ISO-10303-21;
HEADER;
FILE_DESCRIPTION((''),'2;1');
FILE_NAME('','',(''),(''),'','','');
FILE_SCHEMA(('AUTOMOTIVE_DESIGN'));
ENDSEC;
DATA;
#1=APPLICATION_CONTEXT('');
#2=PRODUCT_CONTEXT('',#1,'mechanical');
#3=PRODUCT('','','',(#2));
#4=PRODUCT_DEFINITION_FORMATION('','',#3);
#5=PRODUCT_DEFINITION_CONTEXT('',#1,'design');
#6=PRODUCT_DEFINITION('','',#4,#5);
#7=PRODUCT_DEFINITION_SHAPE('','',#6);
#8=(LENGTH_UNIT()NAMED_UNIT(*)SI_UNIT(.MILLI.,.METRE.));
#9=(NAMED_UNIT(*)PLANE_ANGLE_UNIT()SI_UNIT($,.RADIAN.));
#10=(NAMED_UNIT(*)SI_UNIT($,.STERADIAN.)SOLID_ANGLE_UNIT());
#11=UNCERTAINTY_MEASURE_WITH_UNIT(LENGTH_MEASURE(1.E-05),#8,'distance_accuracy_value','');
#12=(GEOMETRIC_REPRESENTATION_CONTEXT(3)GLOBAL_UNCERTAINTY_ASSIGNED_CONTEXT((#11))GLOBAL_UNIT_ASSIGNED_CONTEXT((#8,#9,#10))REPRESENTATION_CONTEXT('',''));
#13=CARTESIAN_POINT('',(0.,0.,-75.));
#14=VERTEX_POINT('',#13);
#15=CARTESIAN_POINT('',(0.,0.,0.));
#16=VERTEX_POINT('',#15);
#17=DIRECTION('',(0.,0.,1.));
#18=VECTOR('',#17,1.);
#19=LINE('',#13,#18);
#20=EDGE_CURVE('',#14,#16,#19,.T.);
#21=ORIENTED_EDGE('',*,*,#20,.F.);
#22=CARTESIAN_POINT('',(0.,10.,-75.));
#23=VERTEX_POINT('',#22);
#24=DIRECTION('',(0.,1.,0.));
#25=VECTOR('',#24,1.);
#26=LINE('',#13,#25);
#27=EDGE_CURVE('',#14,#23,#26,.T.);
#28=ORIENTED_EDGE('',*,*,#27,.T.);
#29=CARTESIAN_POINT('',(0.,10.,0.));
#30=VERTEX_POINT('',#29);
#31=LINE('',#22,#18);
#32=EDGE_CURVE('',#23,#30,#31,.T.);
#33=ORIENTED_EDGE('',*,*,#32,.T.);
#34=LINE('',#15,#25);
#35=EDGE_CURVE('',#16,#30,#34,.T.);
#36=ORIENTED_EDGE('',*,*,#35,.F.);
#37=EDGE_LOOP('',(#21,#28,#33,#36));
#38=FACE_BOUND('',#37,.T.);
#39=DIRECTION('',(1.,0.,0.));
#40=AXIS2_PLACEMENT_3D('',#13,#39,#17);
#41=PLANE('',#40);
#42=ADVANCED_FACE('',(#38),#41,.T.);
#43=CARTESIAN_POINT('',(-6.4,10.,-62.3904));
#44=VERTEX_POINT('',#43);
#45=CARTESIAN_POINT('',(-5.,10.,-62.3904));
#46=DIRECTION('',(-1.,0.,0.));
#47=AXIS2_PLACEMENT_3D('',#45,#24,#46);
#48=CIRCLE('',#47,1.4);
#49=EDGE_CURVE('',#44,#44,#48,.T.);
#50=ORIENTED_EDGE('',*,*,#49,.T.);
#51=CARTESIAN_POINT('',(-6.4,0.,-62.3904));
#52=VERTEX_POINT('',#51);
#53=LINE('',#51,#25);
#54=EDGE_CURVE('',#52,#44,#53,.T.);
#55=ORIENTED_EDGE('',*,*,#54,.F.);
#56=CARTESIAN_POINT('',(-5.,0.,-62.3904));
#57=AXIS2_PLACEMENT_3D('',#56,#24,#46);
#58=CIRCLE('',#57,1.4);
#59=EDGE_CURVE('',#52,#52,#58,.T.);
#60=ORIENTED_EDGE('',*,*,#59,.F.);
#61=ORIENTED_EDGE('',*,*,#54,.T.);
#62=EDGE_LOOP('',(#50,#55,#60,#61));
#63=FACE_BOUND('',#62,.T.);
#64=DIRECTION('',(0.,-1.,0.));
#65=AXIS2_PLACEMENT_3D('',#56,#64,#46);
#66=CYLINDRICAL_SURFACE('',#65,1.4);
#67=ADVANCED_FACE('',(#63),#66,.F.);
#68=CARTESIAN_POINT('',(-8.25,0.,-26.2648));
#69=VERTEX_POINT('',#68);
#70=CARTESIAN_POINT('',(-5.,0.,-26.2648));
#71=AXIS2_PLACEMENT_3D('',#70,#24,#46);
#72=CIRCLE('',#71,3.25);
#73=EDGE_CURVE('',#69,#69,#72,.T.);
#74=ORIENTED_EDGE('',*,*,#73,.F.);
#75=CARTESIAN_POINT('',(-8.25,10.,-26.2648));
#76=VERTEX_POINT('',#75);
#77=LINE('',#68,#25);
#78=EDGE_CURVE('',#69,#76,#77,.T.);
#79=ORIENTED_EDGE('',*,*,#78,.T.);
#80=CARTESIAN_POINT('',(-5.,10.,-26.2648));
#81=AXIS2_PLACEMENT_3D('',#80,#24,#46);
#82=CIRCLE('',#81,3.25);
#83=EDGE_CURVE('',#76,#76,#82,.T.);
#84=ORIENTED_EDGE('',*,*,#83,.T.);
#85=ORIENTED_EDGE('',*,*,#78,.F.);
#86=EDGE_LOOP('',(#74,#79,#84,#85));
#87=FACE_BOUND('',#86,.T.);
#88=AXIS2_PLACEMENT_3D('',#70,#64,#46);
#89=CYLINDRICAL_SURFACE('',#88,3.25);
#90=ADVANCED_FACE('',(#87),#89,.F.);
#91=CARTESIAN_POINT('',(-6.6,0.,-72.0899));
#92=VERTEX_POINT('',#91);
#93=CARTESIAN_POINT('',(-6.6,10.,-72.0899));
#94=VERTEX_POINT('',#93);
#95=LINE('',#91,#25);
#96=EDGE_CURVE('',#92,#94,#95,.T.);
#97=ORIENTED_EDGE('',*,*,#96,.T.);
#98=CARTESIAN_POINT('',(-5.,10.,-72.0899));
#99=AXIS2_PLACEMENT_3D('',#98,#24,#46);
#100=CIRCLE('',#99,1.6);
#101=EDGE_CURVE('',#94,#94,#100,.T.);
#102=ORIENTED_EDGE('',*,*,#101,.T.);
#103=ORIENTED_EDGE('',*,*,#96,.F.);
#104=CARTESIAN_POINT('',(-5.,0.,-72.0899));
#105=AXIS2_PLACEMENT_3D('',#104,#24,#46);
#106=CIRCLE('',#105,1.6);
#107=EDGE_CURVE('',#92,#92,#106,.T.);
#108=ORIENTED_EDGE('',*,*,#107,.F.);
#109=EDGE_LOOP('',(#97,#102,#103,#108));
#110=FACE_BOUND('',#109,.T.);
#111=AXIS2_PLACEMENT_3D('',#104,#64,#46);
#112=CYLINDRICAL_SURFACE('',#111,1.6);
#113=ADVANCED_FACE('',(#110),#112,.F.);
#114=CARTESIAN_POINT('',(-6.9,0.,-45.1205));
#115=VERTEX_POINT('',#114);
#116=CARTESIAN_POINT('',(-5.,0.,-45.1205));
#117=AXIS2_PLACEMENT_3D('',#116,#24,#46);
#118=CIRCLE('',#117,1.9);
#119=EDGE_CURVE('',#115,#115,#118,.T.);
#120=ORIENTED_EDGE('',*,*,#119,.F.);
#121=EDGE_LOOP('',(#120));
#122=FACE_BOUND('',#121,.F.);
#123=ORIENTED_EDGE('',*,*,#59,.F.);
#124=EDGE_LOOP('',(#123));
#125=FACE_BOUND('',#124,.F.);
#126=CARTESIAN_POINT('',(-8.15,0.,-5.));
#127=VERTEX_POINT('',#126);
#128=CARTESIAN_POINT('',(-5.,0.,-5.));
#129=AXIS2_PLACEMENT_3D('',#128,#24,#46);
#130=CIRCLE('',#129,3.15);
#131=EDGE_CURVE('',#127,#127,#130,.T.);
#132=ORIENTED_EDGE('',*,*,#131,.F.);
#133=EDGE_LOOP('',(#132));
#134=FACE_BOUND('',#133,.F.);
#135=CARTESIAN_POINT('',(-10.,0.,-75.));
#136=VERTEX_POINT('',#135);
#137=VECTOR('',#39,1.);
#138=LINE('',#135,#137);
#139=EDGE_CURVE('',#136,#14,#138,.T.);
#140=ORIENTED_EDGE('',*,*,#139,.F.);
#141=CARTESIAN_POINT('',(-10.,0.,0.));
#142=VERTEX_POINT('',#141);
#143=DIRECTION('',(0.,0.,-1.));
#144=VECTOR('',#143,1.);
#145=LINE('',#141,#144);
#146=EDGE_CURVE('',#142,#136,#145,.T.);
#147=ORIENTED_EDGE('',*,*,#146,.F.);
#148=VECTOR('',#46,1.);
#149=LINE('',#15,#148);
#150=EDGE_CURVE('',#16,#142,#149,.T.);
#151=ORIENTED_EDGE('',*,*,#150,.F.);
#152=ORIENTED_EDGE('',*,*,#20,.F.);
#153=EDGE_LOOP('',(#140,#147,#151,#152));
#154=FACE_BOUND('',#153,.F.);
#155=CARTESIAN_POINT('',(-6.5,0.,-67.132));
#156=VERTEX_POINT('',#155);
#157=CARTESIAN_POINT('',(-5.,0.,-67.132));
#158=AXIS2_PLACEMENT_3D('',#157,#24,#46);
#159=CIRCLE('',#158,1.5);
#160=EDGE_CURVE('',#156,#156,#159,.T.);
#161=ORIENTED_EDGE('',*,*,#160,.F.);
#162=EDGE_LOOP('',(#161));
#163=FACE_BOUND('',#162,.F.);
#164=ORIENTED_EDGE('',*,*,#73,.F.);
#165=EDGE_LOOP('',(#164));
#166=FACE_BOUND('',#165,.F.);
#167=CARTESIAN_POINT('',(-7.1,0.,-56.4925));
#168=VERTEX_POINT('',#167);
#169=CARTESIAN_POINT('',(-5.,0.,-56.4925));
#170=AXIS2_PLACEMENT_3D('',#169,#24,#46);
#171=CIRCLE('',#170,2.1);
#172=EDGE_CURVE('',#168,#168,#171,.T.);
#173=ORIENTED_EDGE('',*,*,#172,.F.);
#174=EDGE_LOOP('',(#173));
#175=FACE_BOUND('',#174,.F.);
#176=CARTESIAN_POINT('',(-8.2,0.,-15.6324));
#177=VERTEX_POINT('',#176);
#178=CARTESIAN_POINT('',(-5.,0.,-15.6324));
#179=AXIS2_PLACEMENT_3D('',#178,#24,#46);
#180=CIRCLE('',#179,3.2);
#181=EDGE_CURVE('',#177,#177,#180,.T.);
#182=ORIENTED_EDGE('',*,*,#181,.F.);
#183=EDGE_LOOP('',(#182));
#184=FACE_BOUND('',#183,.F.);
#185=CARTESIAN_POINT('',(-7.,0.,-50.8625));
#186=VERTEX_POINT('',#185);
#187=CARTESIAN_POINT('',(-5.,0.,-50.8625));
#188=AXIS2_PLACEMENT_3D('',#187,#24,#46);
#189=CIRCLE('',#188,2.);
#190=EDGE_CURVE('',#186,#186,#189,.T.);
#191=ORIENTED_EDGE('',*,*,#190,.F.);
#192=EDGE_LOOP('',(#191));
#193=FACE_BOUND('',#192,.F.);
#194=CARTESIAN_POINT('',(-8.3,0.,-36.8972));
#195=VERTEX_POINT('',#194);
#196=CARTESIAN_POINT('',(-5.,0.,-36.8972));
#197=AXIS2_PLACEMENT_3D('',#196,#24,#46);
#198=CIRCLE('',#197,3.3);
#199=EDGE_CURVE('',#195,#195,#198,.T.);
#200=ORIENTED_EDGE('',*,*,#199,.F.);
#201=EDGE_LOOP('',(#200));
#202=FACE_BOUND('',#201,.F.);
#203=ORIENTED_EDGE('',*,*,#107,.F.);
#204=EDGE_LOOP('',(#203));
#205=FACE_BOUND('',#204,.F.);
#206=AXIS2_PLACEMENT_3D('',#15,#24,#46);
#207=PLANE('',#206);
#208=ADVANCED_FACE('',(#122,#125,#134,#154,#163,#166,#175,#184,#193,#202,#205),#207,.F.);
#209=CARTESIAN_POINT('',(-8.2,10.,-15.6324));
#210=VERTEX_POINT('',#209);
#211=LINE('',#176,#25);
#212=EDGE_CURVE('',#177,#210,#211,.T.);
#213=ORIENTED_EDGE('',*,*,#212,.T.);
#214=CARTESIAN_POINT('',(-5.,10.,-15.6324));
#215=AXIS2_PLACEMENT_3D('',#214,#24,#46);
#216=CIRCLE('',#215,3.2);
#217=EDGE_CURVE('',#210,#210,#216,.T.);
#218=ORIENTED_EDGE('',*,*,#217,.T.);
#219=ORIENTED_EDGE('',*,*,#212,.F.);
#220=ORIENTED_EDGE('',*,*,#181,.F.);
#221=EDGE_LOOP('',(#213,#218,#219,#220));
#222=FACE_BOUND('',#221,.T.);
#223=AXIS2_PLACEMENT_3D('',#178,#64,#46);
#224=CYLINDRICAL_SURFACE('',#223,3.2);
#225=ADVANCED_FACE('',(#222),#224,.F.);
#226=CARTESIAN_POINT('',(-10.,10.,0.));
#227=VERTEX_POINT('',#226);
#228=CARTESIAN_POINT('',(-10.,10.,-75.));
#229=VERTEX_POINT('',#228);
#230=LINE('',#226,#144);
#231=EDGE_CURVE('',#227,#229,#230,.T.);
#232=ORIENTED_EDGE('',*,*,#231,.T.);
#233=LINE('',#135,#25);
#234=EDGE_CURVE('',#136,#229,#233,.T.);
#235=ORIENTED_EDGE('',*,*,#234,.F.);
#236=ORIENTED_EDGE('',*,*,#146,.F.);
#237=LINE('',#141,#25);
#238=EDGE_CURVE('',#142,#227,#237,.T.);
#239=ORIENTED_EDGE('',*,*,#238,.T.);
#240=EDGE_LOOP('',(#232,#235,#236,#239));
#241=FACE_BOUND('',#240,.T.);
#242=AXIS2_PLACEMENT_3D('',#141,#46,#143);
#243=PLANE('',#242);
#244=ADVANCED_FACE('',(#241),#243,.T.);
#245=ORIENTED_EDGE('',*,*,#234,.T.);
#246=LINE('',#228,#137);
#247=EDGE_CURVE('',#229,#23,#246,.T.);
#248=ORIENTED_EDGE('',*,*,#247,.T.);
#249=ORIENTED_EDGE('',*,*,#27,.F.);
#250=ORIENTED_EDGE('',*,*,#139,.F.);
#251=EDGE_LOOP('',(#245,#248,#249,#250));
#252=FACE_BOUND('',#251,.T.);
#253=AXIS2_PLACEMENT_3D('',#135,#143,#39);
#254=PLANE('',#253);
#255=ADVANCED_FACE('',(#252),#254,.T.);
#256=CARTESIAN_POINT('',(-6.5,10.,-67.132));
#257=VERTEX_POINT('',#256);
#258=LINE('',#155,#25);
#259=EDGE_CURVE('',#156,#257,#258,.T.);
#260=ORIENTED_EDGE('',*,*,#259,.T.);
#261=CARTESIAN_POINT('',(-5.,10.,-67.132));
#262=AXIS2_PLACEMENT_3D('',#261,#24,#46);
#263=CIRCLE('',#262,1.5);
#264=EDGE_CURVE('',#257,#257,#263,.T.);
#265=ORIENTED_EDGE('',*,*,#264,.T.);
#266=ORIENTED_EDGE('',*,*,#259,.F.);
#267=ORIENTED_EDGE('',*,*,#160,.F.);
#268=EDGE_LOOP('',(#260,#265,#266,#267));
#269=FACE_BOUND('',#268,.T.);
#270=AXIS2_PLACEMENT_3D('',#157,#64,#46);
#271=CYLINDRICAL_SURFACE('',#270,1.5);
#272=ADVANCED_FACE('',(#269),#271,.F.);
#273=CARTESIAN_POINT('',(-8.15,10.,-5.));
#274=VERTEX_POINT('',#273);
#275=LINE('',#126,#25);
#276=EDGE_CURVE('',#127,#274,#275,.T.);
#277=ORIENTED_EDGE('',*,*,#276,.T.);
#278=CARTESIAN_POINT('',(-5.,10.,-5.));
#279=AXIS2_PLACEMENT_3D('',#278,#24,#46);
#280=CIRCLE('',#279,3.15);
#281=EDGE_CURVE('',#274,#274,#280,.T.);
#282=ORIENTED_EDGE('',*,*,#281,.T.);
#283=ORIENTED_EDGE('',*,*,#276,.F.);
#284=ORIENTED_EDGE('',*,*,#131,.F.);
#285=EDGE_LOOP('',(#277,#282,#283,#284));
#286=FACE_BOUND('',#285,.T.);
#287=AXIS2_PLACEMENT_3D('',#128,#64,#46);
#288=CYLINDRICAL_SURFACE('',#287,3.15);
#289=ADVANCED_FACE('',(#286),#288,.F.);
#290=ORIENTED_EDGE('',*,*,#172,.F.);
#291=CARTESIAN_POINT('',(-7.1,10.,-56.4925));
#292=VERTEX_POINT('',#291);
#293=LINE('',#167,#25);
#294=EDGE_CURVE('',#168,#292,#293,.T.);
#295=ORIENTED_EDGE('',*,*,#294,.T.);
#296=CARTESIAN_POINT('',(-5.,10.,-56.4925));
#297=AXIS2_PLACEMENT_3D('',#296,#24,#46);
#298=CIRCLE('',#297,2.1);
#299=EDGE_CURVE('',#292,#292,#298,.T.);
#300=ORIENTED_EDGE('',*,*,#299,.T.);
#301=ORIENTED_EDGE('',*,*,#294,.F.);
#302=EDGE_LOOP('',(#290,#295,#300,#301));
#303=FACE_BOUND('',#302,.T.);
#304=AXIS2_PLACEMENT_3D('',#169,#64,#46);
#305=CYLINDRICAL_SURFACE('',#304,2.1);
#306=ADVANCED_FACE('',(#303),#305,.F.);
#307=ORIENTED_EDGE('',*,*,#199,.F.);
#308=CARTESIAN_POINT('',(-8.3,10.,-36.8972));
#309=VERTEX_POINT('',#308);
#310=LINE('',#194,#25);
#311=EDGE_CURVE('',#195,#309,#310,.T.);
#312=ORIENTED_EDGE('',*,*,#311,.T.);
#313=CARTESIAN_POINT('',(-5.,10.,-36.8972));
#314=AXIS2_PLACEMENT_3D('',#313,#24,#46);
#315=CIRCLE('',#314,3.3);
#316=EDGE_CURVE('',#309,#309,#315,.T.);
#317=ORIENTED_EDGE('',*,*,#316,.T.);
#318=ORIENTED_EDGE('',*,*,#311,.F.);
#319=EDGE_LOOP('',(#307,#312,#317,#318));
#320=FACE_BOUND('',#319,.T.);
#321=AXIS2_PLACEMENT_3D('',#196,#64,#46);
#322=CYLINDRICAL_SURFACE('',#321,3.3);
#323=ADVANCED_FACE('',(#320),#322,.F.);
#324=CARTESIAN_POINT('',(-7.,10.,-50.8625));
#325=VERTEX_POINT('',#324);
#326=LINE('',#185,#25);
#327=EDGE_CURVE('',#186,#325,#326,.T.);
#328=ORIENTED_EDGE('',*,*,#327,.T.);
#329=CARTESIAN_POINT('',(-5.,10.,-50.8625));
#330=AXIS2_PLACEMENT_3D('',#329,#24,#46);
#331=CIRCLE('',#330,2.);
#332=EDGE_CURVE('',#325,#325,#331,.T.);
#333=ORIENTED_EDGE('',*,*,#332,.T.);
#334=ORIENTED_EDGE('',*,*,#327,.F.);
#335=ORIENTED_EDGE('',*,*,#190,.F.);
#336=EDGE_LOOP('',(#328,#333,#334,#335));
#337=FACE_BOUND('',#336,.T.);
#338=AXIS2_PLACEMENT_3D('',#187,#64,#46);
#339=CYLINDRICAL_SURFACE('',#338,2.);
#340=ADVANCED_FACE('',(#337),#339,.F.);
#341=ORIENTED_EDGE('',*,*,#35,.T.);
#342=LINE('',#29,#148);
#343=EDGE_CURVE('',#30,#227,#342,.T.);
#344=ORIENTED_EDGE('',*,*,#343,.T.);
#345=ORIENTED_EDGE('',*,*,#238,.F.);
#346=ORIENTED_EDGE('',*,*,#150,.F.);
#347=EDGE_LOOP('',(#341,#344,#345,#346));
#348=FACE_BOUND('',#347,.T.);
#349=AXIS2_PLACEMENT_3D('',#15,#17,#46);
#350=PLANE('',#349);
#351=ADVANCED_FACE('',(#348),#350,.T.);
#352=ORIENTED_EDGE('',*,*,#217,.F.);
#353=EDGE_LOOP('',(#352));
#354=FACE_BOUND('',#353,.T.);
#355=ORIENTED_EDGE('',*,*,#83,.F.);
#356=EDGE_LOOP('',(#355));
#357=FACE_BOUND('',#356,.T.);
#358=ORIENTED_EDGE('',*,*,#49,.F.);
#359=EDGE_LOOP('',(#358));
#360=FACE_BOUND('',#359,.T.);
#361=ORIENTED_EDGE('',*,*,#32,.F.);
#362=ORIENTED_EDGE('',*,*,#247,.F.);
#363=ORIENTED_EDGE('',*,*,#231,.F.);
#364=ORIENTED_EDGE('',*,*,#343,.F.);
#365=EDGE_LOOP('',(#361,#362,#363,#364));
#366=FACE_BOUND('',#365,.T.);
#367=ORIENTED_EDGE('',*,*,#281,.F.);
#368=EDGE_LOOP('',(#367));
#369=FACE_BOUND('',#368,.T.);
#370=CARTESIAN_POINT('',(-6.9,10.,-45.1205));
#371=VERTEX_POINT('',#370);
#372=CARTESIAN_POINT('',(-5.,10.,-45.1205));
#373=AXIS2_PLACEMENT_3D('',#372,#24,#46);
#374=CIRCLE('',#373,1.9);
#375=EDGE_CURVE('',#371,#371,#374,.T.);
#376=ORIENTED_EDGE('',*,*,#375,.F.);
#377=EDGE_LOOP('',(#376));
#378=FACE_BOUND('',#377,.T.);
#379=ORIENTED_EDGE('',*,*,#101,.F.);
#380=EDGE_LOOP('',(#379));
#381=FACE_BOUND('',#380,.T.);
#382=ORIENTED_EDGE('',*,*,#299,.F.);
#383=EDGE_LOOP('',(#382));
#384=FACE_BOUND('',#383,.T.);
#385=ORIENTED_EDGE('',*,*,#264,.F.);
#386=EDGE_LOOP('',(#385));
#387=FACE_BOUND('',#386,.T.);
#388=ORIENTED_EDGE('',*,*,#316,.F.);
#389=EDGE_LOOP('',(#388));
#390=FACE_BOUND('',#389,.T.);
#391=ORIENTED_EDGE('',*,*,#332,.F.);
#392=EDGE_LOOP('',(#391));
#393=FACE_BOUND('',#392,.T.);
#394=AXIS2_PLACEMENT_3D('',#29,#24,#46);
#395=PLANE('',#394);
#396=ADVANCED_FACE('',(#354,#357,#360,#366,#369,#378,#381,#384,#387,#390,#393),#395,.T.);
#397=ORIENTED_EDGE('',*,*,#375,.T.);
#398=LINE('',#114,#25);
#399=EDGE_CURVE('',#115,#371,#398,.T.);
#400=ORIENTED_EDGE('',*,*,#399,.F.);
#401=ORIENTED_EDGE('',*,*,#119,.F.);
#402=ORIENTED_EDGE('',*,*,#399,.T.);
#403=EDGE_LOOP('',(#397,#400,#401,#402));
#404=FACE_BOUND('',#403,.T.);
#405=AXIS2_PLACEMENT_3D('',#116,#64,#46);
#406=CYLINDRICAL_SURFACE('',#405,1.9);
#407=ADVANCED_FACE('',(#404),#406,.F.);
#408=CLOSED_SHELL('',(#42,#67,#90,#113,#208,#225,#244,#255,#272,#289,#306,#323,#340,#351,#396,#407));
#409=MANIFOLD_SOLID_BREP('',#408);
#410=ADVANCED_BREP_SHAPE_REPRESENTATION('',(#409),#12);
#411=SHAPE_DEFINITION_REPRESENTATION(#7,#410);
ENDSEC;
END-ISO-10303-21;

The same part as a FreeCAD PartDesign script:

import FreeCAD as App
import Part
import Sketcher

V = App.Vector


def add_polygon(sketch, points):
    """Adds a closed chain of lines whose ends are joined by coincident constraints."""
    first, n = sketch.GeometryCount, len(points)
    for a, b in zip(points, points[1:] + points[:1]):
        sketch.addGeometry(Part.LineSegment(App.Vector(*a, 0), App.Vector(*b, 0)), False)
    for i in range(n):
        sketch.addConstraint(Sketcher.Constraint("Coincident", first + i, 2, first + (i + 1) % n, 1))

doc = App.newDocument("Part")
body = doc.addObject("PartDesign::Body", "Body")

sketch1 = body.newObject("Sketcher::SketchObject", "Sketch")
sketch1.AttachmentSupport = (doc.getObject("XZ_Plane"), [""])
sketch1.MapMode = "FlatFace"
add_polygon(sketch1, [(-10, 0), (0, 0), (0, -75), (-10, -75)])
sketch1.addGeometry(Part.Circle(V(-5, -72.0899, 0), V(0, 0, 1), 1.6), False)
sketch1.addGeometry(Part.Circle(V(-5, -67.132, 0), V(0, 0, 1), 1.5), False)
sketch1.addGeometry(Part.Circle(V(-5, -62.3904, 0), V(0, 0, 1), 1.4), False)
sketch1.addGeometry(Part.Circle(V(-5, -56.4925, 0), V(0, 0, 1), 2.1), False)
sketch1.addGeometry(Part.Circle(V(-5, -50.8625, 0), V(0, 0, 1), 2), False)
sketch1.addGeometry(Part.Circle(V(-5, -45.1205, 0), V(0, 0, 1), 1.9), False)
sketch1.addGeometry(Part.Circle(V(-5, -36.8972, 0), V(0, 0, 1), 3.3), False)
sketch1.addGeometry(Part.Circle(V(-5, -26.2648, 0), V(0, 0, 1), 3.25), False)
sketch1.addGeometry(Part.Circle(V(-5, -15.6324, 0), V(0, 0, 1), 3.2), False)
sketch1.addGeometry(Part.Circle(V(-5, -5, 0), V(0, 0, 1), 3.15), False)
sketch1.addConstraint([
    Sketcher.Constraint("Horizontal", 0),
    Sketcher.Constraint("Vertical", 1),
    Sketcher.Constraint("Horizontal", 2),
    Sketcher.Constraint("Vertical", 3),
    Sketcher.Constraint("Coincident", 0, 2, -1, 1),
    Sketcher.Constraint("Vertical", 4, 3, 5, 3),
    Sketcher.Constraint("Vertical", 5, 3, 6, 3),
    Sketcher.Constraint("Vertical", 6, 3, 7, 3),
    Sketcher.Constraint("Vertical", 7, 3, 8, 3),
    Sketcher.Constraint("Vertical", 8, 3, 9, 3),
    Sketcher.Constraint("Vertical", 9, 3, 10, 3),
    Sketcher.Constraint("Vertical", 10, 3, 11, 3),
    Sketcher.Constraint("Vertical", 11, 3, 12, 3),
    Sketcher.Constraint("Vertical", 12, 3, 13, 3),
    Sketcher.Constraint("Diameter", 5, 3.0),
    Sketcher.Constraint("Diameter", 8, 4.0),
    Sketcher.Constraint("Diameter", 4, 3.2),
    Sketcher.Constraint("Diameter", 6, 2.8),
    Sketcher.Constraint("Diameter", 7, 4.2),
    Sketcher.Constraint("Diameter", 9, 3.8),
    Sketcher.Constraint("Diameter", 10, 6.6),
    Sketcher.Constraint("Diameter", 11, 6.5),
    Sketcher.Constraint("Diameter", 12, 6.4),
    Sketcher.Constraint("Diameter", 13, 6.3),
    Sketcher.Constraint("DistanceX", 0, 1, 0, 2, 10.0),
    Sketcher.Constraint("DistanceY", 1, 2, 1, 1, 75.0),
    Sketcher.Constraint("DistanceX", 4, 3, -1, 1, 5.0),
    Sketcher.Constraint("DistanceY", 13, 3, -1, 1, 5.0),
    Sketcher.Constraint("DistanceY", 4, 3, -1, 1, 72.09),
    Sketcher.Constraint("DistanceY", 7, 3, 8, 3, 5.63),
    Sketcher.Constraint("DistanceY", 6, 3, 9, 3, 17.27),
    Sketcher.Constraint("DistanceY", 8, 3, 12, 3, 35.23),
    Sketcher.Constraint("DistanceY", 5, 3, -1, 1, 67.132),
    Sketcher.Constraint("DistanceY", 6, 3, 7, 3, 5.898),
    Sketcher.Constraint("DistanceY", 6, 3, -1, 1, 62.3904),
    Sketcher.Constraint("DistanceY", 10, 3, -1, 1, 36.8972),
    Sketcher.Constraint("DistanceY", 11, 3, -1, 1, 26.2648),
])
pad1 = body.newObject("PartDesign::Pad", "Pad")
pad1.Profile = sketch1
pad1.Length = 10
pad1.Reversed = True

doc.recompute()
